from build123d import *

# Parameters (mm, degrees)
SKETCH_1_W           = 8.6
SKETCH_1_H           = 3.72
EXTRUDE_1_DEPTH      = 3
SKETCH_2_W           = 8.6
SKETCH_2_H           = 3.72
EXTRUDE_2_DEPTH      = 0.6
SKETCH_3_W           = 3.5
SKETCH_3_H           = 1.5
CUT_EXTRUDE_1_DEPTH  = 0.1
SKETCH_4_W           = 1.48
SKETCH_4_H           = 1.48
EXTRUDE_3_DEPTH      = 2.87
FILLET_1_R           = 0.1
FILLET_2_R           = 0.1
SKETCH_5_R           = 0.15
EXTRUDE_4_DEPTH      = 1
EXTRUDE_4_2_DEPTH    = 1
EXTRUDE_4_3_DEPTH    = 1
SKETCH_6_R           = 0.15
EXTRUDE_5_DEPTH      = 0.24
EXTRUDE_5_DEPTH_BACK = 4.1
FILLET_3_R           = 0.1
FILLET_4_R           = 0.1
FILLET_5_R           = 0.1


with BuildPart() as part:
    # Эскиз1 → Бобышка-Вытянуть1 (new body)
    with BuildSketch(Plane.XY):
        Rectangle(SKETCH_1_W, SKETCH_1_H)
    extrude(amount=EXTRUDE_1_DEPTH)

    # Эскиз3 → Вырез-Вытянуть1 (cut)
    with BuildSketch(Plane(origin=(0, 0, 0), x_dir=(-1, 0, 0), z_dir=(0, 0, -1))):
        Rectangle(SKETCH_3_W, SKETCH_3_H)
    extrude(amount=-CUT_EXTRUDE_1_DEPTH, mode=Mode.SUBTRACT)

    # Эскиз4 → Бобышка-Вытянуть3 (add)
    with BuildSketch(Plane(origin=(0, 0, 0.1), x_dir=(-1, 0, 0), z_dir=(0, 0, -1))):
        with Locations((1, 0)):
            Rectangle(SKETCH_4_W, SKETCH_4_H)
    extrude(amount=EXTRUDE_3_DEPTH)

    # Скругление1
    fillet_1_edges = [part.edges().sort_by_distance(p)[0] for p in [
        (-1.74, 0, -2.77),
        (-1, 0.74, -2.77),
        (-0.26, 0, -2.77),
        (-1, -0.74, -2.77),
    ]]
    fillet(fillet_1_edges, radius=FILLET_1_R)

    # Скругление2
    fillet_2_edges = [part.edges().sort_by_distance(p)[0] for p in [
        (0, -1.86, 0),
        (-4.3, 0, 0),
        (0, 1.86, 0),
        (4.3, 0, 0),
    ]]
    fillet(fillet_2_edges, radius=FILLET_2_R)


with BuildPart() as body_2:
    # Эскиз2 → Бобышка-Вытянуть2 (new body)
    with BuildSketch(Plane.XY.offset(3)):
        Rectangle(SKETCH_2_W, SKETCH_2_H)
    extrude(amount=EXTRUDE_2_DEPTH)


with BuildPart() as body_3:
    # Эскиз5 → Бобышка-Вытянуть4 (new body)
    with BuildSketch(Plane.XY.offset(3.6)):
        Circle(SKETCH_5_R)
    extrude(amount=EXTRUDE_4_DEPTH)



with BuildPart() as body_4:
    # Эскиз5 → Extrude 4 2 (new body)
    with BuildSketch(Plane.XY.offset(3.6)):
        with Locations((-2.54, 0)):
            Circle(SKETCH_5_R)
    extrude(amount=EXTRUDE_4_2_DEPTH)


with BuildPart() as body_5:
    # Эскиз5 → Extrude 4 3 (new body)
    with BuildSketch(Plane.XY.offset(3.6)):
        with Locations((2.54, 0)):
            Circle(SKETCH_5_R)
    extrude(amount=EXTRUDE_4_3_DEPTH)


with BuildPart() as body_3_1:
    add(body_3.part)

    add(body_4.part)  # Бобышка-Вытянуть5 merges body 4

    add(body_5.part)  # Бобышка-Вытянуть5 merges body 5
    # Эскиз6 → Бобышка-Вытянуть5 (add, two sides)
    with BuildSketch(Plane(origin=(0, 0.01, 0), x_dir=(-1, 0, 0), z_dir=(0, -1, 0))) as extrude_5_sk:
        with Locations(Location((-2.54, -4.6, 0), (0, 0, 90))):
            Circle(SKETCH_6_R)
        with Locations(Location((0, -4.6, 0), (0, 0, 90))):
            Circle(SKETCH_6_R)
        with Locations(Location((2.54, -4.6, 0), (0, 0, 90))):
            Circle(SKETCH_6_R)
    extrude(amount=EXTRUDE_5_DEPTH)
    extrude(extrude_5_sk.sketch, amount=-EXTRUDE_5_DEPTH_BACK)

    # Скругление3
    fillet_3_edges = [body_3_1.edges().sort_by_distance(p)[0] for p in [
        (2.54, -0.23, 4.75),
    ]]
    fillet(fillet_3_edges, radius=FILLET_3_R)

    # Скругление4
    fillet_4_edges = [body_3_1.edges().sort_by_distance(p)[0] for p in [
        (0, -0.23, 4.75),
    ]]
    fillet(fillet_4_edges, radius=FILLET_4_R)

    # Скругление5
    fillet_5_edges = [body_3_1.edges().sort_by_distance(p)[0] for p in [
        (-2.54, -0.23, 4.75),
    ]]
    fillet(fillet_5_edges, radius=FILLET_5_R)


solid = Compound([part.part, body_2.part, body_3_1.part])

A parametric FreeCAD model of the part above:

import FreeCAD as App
import Part
import Sketcher
Q = App.Units.Quantity


def edges_at(feature, points):
    """Names of the edges that pass closest to the given points."""
    edges = feature.Shape.Edges
    near = lambda p: min(range(len(edges)), key=lambda i: edges[i].distToShape(Part.Vertex(*p))[0])
    return sorted({f"Edge{near(p) + 1}" for p in points})


def add_polygon(sketch, points):
    """Adds a closed chain of lines whose ends are joined by coincident constraints."""
    first, n = sketch.GeometryCount, len(points)
    for a, b in zip(points, points[1:] + points[:1]):
        sketch.addGeometry(Part.LineSegment(App.Vector(*a, 0), App.Vector(*b, 0)), False)
    for i in range(n):
        sketch.addConstraint(Sketcher.Constraint("Coincident", first + i, 2, first + (i + 1) % n, 1))

doc = App.newDocument("Part")
body = doc.addObject("PartDesign::Body", "Body")

sketch1 = body.newObject("Sketcher::SketchObject", "Sketch")
sketch1.AttachmentSupport = (doc.getObject("XY_Plane"), [""])
sketch1.MapMode = "FlatFace"
add_polygon(sketch1, [(-4.3, 1.9), (-4.3, -1.9), (4.3, -1.9), (4.3, 1.9)])
sketch1.addConstraint(Sketcher.Constraint("Vertical", 0))
sketch1.addConstraint(Sketcher.Constraint("Horizontal", 1))
sketch1.addConstraint(Sketcher.Constraint("Vertical", 2))
sketch1.addConstraint(Sketcher.Constraint("Horizontal", 3))
sketch1.addConstraint(Sketcher.Constraint("Symmetric", 0, 2, 2, 2, -1, 1))
sketch1.addConstraint(Sketcher.Constraint("DistanceX", 1, 1, 1, 2, Q("8.6 mm")))
sketch1.addConstraint(Sketcher.Constraint("DistanceY", 0, 2, 0, 1, Q("3.72 mm")))
pad1 = body.newObject("PartDesign::Pad", "Pad")
pad1.Profile = sketch1
pad1.Length = 3

sketch2 = body.newObject("Sketcher::SketchObject", "Sketch001")
sketch2.AttachmentSupport = (doc.getObject("XY_Plane"), [""])
sketch2.MapMode = "FlatFace"
add_polygon(sketch2, [(1.8, 0.8), (1.8, -0.8), (-1.8, -0.8), (-1.8, 0.8)])
sketch2.addConstraint(Sketcher.Constraint("Vertical", 0))
sketch2.addConstraint(Sketcher.Constraint("Horizontal", 1))
sketch2.addConstraint(Sketcher.Constraint("Vertical", 2))
sketch2.addConstraint(Sketcher.Constraint("Horizontal", 3))
sketch2.addConstraint(Sketcher.Constraint("Symmetric", 0, 2, 2, 2, -1, 1))
sketch2.addConstraint(Sketcher.Constraint("DistanceX", 1, 2, 1, 1, Q("3.5 mm")))
sketch2.addConstraint(Sketcher.Constraint("DistanceY", 0, 2, 0, 1, Q("1.5 mm")))
pocket1 = body.newObject("PartDesign::Pocket", "Pocket")
pocket1.Profile = sketch2
pocket1.Length = 0.1
pocket1.Reversed = True

sketch3 = body.newObject("Sketcher::SketchObject", "Sketch002")
sketch3.AttachmentSupport = (doc.getObject("XY_Plane"), [""])
sketch3.MapMode = "FlatFace"
sketch3.AttachmentOffset = App.Placement(App.Vector(0, 0, 0.1), App.Rotation())
add_polygon(sketch3, [(-0.3, 0.7), (-0.3, -0.7), (-1.7, -0.7), (-1.7, 0.7)])
sketch3.addConstraint(Sketcher.Constraint("Vertical", 0))
sketch3.addConstraint(Sketcher.Constraint("Horizontal", 1))
sketch3.addConstraint(Sketcher.Constraint("Vertical", 2))
sketch3.addConstraint(Sketcher.Constraint("Horizontal", 3))
sketch3.addConstraint(Sketcher.Constraint("Equal", 3, 0))
sketch3.addConstraint(Sketcher.Constraint("DistanceX", 1, 2, 1, 1, Q("1.48 mm")))
sketch3.addConstraint(Sketcher.Constraint("DistanceX", 0, 2, -1, 1, Q("0.26 mm")))
sketch3.addConstraint(Sketcher.Constraint("DistanceY", 0, 2, -1, 1, Q("0.74 mm")))
pad2 = body.newObject("PartDesign::Pad", "Pad001")
pad2.Profile = sketch3
pad2.Length = 2.87
pad2.Reversed = True
doc.recompute()

fillet = body.newObject("PartDesign::Fillet", "Fillet")
fillet.Base = (pad2, edges_at(pad2, [
    (-1.74, 0, -2.77),
    (-1, 0.74, -2.77),
    (-0.26, 0, -2.77),
    (-1, -0.74, -2.77),
]))
fillet.Radius = 0.1
doc.recompute()

fillet2 = body.newObject("PartDesign::Fillet", "Fillet001")
fillet2.Base = (fillet, edges_at(fillet, [
    (0, -1.86, 0),
    (-4.3, 0, 0),
    (0, 1.86, 0),
    (4.3, 0, 0),
]))
fillet2.Radius = 0.1
body2 = doc.addObject("PartDesign::Body", "Body001")

sketch4 = body2.newObject("Sketcher::SketchObject", "Sketch003")
sketch4.AttachmentSupport = (doc.getObject("XY_Plane001"), [""])
sketch4.MapMode = "FlatFace"
sketch4.AttachmentOffset = App.Placement(App.Vector(0, 0, 3), App.Rotation())
add_polygon(sketch4, [(-4.3, 1.9), (-4.3, -1.9), (4.3, -1.9), (4.3, 1.9)])
sketch4.addConstraint(Sketcher.Constraint("Vertical", 0))
sketch4.addConstraint(Sketcher.Constraint("Horizontal", 1))
sketch4.addConstraint(Sketcher.Constraint("Vertical", 2))
sketch4.addConstraint(Sketcher.Constraint("Horizontal", 3))
sketch4.addConstraint(Sketcher.Constraint("Symmetric", 0, 2, 2, 2, -1, 1))
sketch4.addConstraint(Sketcher.Constraint("DistanceX", 1, 1, 1, 2, Q("8.6 mm")))
sketch4.addConstraint(Sketcher.Constraint("DistanceY", 0, 2, 0, 1, Q("3.72 mm")))
pad3 = body2.newObject("PartDesign::Pad", "Pad002")
pad3.Profile = sketch4
pad3.Length = 0.6
body3 = doc.addObject("PartDesign::Body", "Body002")

sketch5 = body3.newObject("Sketcher::SketchObject", "Sketch004")
sketch5.AttachmentSupport = (doc.getObject("XY_Plane002"), [""])
sketch5.MapMode = "FlatFace"
sketch5.AttachmentOffset = App.Placement(App.Vector(0, 0, 3.6), App.Rotation())
sketch5.addGeometry(Part.Circle(App.Vector(0, 0, 0), App.Vector(0, 0, 1), 0.15), False)
sketch5.addConstraint(Sketcher.Constraint("Coincident", 0, 3, -1, 1))
sketch5.addConstraint(Sketcher.Constraint("Diameter", 0, Q("0.3 mm")))
pad4 = body3.newObject("PartDesign::Pad", "Pad003")
pad4.Profile = sketch5
pad4.Length = 1
body4 = doc.addObject("PartDesign::Body", "Body003")

sketch6 = body4.newObject("Sketcher::SketchObject", "Sketch005")
sketch6.AttachmentSupport = (doc.getObject("XY_Plane003"), [""])
sketch6.MapMode = "FlatFace"
sketch6.AttachmentOffset = App.Placement(App.Vector(0, 0, 3.6), App.Rotation())
sketch6.addGeometry(Part.Circle(App.Vector(-2.54, 0, 0), App.Vector(0, 0, 1), 0.15), False)
sketch6.addConstraint(Sketcher.Constraint("PointOnObject", 0, 3, -1))
sketch6.addConstraint(Sketcher.Constraint("Diameter", 0, Q("0.3 mm")))
sketch6.addConstraint(Sketcher.Constraint("DistanceX", 0, 3, -1, 1, Q("2.54 mm")))
pad5 = body4.newObject("PartDesign::Pad", "Pad004")
pad5.Profile = sketch6
pad5.Length = 1
body5 = doc.addObject("PartDesign::Body", "Body004")

sketch7 = body5.newObject("Sketcher::SketchObject", "Sketch006")
sketch7.AttachmentSupport = (doc.getObject("XY_Plane004"), [""])
sketch7.MapMode = "FlatFace"
sketch7.AttachmentOffset = App.Placement(App.Vector(0, 0, 3.6), App.Rotation())
sketch7.addGeometry(Part.Circle(App.Vector(2.54, 0, 0), App.Vector(0, 0, 1), 0.15), False)
sketch7.addConstraint(Sketcher.Constraint("PointOnObject", 0, 3, -1))
sketch7.addConstraint(Sketcher.Constraint("Diameter", 0, Q("0.3 mm")))
sketch7.addConstraint(Sketcher.Constraint("DistanceX", -1, 1, 0, 3, Q("2.54 mm")))
pad6 = body5.newObject("PartDesign::Pad", "Pad005")
pad6.Profile = sketch7
pad6.Length = 1
body3.AllowCompound = True
doc.recompute()

boolean = body3.newObject("PartDesign::Boolean", "Boolean")
boolean.Type = "Fuse"
boolean.addObjects([body4])
doc.recompute()

boolean2 = body3.newObject("PartDesign::Boolean", "Boolean001")
boolean2.Type = "Fuse"
boolean2.addObjects([body5])

sketch8 = body3.newObject("Sketcher::SketchObject", "Sketch007")
sketch8.AttachmentSupport = (doc.getObject("XZ_Plane002"), [""])
sketch8.MapMode = "FlatFace"
sketch8.AttachmentOffset = App.Placement(App.Vector(0, 0, -0.01), App.Rotation())
sketch8.addGeometry(Part.Circle(App.Vector(2.54, 4.6, 0), App.Vector(0, 0, 1), 0.15), False)
sketch8.addGeometry(Part.Circle(App.Vector(0, 4.6, 0), App.Vector(0, 0, 1), 0.15), False)
sketch8.addGeometry(Part.Circle(App.Vector(-2.54, 4.6, 0), App.Vector(0, 0, 1), 0.15), False)
sketch8.addConstraint(Sketcher.Constraint("Equal", 0, 1))
sketch8.addConstraint(Sketcher.Constraint("Equal", 1, 2))
sketch8.addConstraint(Sketcher.Constraint("Symmetric", 0, 3, 2, 3, -2))
sketch8.addConstraint(Sketcher.Constraint("PointOnObject", 1, 3, -2))
sketch8.addConstraint(Sketcher.Constraint("Horizontal", 0, 3, 1, 3))
sketch8.addConstraint(Sketcher.Constraint("Diameter", 0, Q("0.3 mm")))
sketch8.addConstraint(Sketcher.Constraint("DistanceY", -1, 1, 0, 3, Q("4.6 mm")))
sketch8.addConstraint(Sketcher.Constraint("DistanceX", -1, 1, 0, 3, Q("2.54 mm")))
pad7 = body3.newObject("PartDesign::Pad", "Pad006")
pad7.Profile = sketch8
pad7.Type = "TwoLengths"
pad7.Length = 0.24
pad7.Length2 = 4.1
doc.recompute()

fillet3 = body3.newObject("PartDesign::Fillet", "Fillet002")
fillet3.Base = (pad7, edges_at(pad7, [(2.54, -0.23, 4.75)]))
fillet3.Radius = 0.1
doc.recompute()

fillet4 = body3.newObject("PartDesign::Fillet", "Fillet003")
fillet4.Base = (fillet3, edges_at(fillet3, [(0, -0.23, 4.75)]))
fillet4.Radius = 0.1
doc.recompute()

fillet5 = body3.newObject("PartDesign::Fillet", "Fillet004")
fillet5.Base = (fillet4, edges_at(fillet4, [(-2.54, -0.23, 4.75)]))
fillet5.Radius = 0.1

doc.recompute()
